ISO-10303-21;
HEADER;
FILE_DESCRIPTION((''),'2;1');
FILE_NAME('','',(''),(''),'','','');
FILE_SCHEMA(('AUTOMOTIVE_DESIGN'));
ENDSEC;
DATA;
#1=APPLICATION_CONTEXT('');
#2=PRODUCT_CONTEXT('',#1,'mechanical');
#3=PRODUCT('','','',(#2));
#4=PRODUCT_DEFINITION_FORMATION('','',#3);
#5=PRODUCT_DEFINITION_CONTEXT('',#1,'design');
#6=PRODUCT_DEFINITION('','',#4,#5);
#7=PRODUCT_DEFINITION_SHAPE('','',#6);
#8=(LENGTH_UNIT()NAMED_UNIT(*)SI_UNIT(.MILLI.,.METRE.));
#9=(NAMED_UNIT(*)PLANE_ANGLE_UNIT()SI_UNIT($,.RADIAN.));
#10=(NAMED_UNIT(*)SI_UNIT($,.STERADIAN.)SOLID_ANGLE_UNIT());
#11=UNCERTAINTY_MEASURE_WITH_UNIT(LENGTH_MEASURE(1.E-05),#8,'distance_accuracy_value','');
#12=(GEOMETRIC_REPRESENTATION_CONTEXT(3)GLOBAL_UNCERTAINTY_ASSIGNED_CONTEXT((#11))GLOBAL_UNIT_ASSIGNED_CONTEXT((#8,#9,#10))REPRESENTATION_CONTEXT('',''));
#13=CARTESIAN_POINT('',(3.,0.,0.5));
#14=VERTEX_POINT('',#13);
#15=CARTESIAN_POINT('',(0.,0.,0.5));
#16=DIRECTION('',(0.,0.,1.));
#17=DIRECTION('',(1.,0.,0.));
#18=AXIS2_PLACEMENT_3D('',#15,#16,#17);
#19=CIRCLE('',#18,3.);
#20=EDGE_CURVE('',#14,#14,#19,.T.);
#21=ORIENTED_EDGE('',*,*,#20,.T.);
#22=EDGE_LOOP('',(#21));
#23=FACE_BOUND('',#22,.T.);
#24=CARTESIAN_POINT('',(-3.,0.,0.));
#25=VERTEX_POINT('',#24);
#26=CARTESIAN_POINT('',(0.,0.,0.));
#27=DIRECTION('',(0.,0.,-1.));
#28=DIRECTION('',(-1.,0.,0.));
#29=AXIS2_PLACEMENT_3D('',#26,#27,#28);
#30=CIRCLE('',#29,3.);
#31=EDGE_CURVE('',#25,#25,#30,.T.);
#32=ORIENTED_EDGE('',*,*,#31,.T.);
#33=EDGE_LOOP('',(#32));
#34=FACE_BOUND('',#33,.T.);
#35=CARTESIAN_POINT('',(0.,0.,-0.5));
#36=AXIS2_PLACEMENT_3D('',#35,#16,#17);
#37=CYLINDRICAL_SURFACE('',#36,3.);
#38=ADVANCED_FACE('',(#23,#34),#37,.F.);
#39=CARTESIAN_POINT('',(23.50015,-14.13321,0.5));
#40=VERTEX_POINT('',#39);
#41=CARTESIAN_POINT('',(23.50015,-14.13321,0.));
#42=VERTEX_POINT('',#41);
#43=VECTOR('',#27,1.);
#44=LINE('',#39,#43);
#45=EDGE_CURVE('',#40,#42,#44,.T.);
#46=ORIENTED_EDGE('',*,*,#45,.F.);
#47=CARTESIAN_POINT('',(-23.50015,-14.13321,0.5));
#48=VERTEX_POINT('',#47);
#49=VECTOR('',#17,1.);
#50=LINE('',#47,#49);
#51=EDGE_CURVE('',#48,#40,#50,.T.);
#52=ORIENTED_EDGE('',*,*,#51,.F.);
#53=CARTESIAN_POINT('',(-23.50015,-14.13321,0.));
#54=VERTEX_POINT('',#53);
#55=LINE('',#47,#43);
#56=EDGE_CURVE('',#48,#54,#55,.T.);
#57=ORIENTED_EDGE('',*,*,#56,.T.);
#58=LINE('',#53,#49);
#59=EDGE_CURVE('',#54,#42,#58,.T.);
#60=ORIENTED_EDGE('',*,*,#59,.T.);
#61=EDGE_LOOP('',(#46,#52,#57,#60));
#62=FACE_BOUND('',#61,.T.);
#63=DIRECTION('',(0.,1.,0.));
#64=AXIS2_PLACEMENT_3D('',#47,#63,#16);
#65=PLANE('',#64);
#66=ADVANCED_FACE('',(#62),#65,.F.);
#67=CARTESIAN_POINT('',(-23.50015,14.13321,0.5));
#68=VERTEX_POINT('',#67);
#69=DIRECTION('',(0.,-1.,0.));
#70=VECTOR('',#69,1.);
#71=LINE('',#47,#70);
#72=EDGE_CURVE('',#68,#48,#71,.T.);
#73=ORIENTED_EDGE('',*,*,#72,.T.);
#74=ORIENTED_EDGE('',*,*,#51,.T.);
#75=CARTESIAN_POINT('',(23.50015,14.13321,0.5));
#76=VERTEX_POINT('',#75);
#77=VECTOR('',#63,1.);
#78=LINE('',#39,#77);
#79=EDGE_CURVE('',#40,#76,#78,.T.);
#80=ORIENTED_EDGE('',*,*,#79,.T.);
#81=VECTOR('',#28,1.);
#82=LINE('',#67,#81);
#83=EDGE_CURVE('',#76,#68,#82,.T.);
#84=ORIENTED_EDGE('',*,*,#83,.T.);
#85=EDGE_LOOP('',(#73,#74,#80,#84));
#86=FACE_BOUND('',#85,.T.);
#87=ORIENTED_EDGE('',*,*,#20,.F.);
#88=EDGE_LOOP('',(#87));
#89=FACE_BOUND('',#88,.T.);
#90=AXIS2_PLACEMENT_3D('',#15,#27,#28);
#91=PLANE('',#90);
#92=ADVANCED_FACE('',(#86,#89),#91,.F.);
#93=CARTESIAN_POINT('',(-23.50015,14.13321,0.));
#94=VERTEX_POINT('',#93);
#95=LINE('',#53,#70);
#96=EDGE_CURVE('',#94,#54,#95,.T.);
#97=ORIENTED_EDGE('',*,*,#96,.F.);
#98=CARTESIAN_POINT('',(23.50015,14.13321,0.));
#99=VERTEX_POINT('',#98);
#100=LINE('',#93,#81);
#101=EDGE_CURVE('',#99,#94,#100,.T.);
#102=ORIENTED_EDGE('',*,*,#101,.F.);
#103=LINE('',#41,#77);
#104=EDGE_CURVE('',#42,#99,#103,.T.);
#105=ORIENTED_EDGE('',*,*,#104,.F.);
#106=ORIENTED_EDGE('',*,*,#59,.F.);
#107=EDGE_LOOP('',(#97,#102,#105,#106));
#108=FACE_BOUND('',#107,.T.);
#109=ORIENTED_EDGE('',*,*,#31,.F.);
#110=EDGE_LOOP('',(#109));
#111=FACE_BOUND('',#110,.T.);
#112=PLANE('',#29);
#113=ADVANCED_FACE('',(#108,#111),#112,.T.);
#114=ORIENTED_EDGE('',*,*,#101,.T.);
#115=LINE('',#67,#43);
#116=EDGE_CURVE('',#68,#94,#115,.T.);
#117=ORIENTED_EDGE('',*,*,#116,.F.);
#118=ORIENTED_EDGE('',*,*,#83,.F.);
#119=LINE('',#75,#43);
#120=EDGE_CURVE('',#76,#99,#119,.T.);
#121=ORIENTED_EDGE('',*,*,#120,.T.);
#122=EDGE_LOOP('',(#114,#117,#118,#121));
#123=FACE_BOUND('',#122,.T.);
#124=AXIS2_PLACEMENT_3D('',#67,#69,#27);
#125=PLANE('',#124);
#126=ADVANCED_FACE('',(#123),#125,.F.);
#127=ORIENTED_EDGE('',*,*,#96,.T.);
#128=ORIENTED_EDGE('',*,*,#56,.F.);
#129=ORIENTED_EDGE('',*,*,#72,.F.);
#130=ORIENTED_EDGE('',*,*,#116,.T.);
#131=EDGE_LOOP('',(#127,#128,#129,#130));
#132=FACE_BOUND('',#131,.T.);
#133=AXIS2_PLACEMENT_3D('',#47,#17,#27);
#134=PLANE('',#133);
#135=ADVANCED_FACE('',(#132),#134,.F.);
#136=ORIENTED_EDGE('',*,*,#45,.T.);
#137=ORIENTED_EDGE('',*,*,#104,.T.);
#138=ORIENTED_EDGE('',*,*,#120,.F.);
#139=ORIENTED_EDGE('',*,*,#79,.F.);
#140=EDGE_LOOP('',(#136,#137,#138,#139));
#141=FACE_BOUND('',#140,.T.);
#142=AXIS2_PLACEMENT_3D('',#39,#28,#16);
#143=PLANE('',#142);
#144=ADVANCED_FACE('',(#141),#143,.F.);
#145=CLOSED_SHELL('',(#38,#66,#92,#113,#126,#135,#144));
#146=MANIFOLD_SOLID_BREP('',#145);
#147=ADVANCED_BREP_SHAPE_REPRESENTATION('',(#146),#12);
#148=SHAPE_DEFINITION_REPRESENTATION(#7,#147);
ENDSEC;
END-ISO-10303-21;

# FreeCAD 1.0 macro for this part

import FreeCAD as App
import Part
import Sketcher

V = App.Vector
Q = App.Units.Quantity


def add_polygon(sketch, points):
    """Adds a closed chain of lines whose ends are joined by coincident constraints."""
    first, n = sketch.GeometryCount, len(points)
    for a, b in zip(points, points[1:] + points[:1]):
        sketch.addGeometry(Part.LineSegment(App.Vector(*a, 0), App.Vector(*b, 0)), False)
    for i in range(n):
        sketch.addConstraint(Sketcher.Constraint("Coincident", first + i, 2, first + (i + 1) % n, 1))

doc = App.newDocument("Part")
body = doc.addObject("PartDesign::Body", "Body")

# Sketch on XY plane
sketch1 = body.newObject("Sketcher::SketchObject", "Sketch")
sketch1.AttachmentSupport = (doc.getObject("XY_Plane"), [""])
sketch1.MapMode = "FlatFace"
add_polygon(sketch1, [(-24, 14), (-24, -14), (24, -14), (24, 14)])  # lines 0-3
sketch1.addConstraint([
    Sketcher.Constraint("Vertical", 0),
    Sketcher.Constraint("Horizontal", 1),
    Sketcher.Constraint("Vertical", 2),
    Sketcher.Constraint("Horizontal", 3),
    Sketcher.Constraint("Symmetric", 0, 2, 2, 2, -1, 1),
    Sketcher.Constraint("DistanceX", 1, 1, 1, 2, Q("47.000299 mm")),
    Sketcher.Constraint("DistanceY", 0, 2, 0, 1, Q("28.26642 mm")),
])
pad1 = body.newObject("PartDesign::Pad", "Pad")
pad1.Profile = sketch1
pad1.Length = 0.5

# Sketch on XY plane
sketch2 = body.newObject("Sketcher::SketchObject", "Sketch001")
sketch2.AttachmentSupport = (doc.getObject("XY_Plane"), [""])
sketch2.MapMode = "FlatFace"
sketch2.AttachmentOffset = App.Placement(V(0, 0, 0.5), App.Rotation())
sketch2.addGeometry(Part.Circle(V(0, 0, 0), V(0, 0, 1), 3), False)
sketch2.addConstraint([
    Sketcher.Constraint("Coincident", 0, 3, -1, 1),
    Sketcher.Constraint("Diameter", 0, Q("6 mm")),
])
pocket1 = body.newObject("PartDesign::Pocket", "Pocket")
pocket1.Profile = sketch2
pocket1.Length = 1

doc.recompute()
